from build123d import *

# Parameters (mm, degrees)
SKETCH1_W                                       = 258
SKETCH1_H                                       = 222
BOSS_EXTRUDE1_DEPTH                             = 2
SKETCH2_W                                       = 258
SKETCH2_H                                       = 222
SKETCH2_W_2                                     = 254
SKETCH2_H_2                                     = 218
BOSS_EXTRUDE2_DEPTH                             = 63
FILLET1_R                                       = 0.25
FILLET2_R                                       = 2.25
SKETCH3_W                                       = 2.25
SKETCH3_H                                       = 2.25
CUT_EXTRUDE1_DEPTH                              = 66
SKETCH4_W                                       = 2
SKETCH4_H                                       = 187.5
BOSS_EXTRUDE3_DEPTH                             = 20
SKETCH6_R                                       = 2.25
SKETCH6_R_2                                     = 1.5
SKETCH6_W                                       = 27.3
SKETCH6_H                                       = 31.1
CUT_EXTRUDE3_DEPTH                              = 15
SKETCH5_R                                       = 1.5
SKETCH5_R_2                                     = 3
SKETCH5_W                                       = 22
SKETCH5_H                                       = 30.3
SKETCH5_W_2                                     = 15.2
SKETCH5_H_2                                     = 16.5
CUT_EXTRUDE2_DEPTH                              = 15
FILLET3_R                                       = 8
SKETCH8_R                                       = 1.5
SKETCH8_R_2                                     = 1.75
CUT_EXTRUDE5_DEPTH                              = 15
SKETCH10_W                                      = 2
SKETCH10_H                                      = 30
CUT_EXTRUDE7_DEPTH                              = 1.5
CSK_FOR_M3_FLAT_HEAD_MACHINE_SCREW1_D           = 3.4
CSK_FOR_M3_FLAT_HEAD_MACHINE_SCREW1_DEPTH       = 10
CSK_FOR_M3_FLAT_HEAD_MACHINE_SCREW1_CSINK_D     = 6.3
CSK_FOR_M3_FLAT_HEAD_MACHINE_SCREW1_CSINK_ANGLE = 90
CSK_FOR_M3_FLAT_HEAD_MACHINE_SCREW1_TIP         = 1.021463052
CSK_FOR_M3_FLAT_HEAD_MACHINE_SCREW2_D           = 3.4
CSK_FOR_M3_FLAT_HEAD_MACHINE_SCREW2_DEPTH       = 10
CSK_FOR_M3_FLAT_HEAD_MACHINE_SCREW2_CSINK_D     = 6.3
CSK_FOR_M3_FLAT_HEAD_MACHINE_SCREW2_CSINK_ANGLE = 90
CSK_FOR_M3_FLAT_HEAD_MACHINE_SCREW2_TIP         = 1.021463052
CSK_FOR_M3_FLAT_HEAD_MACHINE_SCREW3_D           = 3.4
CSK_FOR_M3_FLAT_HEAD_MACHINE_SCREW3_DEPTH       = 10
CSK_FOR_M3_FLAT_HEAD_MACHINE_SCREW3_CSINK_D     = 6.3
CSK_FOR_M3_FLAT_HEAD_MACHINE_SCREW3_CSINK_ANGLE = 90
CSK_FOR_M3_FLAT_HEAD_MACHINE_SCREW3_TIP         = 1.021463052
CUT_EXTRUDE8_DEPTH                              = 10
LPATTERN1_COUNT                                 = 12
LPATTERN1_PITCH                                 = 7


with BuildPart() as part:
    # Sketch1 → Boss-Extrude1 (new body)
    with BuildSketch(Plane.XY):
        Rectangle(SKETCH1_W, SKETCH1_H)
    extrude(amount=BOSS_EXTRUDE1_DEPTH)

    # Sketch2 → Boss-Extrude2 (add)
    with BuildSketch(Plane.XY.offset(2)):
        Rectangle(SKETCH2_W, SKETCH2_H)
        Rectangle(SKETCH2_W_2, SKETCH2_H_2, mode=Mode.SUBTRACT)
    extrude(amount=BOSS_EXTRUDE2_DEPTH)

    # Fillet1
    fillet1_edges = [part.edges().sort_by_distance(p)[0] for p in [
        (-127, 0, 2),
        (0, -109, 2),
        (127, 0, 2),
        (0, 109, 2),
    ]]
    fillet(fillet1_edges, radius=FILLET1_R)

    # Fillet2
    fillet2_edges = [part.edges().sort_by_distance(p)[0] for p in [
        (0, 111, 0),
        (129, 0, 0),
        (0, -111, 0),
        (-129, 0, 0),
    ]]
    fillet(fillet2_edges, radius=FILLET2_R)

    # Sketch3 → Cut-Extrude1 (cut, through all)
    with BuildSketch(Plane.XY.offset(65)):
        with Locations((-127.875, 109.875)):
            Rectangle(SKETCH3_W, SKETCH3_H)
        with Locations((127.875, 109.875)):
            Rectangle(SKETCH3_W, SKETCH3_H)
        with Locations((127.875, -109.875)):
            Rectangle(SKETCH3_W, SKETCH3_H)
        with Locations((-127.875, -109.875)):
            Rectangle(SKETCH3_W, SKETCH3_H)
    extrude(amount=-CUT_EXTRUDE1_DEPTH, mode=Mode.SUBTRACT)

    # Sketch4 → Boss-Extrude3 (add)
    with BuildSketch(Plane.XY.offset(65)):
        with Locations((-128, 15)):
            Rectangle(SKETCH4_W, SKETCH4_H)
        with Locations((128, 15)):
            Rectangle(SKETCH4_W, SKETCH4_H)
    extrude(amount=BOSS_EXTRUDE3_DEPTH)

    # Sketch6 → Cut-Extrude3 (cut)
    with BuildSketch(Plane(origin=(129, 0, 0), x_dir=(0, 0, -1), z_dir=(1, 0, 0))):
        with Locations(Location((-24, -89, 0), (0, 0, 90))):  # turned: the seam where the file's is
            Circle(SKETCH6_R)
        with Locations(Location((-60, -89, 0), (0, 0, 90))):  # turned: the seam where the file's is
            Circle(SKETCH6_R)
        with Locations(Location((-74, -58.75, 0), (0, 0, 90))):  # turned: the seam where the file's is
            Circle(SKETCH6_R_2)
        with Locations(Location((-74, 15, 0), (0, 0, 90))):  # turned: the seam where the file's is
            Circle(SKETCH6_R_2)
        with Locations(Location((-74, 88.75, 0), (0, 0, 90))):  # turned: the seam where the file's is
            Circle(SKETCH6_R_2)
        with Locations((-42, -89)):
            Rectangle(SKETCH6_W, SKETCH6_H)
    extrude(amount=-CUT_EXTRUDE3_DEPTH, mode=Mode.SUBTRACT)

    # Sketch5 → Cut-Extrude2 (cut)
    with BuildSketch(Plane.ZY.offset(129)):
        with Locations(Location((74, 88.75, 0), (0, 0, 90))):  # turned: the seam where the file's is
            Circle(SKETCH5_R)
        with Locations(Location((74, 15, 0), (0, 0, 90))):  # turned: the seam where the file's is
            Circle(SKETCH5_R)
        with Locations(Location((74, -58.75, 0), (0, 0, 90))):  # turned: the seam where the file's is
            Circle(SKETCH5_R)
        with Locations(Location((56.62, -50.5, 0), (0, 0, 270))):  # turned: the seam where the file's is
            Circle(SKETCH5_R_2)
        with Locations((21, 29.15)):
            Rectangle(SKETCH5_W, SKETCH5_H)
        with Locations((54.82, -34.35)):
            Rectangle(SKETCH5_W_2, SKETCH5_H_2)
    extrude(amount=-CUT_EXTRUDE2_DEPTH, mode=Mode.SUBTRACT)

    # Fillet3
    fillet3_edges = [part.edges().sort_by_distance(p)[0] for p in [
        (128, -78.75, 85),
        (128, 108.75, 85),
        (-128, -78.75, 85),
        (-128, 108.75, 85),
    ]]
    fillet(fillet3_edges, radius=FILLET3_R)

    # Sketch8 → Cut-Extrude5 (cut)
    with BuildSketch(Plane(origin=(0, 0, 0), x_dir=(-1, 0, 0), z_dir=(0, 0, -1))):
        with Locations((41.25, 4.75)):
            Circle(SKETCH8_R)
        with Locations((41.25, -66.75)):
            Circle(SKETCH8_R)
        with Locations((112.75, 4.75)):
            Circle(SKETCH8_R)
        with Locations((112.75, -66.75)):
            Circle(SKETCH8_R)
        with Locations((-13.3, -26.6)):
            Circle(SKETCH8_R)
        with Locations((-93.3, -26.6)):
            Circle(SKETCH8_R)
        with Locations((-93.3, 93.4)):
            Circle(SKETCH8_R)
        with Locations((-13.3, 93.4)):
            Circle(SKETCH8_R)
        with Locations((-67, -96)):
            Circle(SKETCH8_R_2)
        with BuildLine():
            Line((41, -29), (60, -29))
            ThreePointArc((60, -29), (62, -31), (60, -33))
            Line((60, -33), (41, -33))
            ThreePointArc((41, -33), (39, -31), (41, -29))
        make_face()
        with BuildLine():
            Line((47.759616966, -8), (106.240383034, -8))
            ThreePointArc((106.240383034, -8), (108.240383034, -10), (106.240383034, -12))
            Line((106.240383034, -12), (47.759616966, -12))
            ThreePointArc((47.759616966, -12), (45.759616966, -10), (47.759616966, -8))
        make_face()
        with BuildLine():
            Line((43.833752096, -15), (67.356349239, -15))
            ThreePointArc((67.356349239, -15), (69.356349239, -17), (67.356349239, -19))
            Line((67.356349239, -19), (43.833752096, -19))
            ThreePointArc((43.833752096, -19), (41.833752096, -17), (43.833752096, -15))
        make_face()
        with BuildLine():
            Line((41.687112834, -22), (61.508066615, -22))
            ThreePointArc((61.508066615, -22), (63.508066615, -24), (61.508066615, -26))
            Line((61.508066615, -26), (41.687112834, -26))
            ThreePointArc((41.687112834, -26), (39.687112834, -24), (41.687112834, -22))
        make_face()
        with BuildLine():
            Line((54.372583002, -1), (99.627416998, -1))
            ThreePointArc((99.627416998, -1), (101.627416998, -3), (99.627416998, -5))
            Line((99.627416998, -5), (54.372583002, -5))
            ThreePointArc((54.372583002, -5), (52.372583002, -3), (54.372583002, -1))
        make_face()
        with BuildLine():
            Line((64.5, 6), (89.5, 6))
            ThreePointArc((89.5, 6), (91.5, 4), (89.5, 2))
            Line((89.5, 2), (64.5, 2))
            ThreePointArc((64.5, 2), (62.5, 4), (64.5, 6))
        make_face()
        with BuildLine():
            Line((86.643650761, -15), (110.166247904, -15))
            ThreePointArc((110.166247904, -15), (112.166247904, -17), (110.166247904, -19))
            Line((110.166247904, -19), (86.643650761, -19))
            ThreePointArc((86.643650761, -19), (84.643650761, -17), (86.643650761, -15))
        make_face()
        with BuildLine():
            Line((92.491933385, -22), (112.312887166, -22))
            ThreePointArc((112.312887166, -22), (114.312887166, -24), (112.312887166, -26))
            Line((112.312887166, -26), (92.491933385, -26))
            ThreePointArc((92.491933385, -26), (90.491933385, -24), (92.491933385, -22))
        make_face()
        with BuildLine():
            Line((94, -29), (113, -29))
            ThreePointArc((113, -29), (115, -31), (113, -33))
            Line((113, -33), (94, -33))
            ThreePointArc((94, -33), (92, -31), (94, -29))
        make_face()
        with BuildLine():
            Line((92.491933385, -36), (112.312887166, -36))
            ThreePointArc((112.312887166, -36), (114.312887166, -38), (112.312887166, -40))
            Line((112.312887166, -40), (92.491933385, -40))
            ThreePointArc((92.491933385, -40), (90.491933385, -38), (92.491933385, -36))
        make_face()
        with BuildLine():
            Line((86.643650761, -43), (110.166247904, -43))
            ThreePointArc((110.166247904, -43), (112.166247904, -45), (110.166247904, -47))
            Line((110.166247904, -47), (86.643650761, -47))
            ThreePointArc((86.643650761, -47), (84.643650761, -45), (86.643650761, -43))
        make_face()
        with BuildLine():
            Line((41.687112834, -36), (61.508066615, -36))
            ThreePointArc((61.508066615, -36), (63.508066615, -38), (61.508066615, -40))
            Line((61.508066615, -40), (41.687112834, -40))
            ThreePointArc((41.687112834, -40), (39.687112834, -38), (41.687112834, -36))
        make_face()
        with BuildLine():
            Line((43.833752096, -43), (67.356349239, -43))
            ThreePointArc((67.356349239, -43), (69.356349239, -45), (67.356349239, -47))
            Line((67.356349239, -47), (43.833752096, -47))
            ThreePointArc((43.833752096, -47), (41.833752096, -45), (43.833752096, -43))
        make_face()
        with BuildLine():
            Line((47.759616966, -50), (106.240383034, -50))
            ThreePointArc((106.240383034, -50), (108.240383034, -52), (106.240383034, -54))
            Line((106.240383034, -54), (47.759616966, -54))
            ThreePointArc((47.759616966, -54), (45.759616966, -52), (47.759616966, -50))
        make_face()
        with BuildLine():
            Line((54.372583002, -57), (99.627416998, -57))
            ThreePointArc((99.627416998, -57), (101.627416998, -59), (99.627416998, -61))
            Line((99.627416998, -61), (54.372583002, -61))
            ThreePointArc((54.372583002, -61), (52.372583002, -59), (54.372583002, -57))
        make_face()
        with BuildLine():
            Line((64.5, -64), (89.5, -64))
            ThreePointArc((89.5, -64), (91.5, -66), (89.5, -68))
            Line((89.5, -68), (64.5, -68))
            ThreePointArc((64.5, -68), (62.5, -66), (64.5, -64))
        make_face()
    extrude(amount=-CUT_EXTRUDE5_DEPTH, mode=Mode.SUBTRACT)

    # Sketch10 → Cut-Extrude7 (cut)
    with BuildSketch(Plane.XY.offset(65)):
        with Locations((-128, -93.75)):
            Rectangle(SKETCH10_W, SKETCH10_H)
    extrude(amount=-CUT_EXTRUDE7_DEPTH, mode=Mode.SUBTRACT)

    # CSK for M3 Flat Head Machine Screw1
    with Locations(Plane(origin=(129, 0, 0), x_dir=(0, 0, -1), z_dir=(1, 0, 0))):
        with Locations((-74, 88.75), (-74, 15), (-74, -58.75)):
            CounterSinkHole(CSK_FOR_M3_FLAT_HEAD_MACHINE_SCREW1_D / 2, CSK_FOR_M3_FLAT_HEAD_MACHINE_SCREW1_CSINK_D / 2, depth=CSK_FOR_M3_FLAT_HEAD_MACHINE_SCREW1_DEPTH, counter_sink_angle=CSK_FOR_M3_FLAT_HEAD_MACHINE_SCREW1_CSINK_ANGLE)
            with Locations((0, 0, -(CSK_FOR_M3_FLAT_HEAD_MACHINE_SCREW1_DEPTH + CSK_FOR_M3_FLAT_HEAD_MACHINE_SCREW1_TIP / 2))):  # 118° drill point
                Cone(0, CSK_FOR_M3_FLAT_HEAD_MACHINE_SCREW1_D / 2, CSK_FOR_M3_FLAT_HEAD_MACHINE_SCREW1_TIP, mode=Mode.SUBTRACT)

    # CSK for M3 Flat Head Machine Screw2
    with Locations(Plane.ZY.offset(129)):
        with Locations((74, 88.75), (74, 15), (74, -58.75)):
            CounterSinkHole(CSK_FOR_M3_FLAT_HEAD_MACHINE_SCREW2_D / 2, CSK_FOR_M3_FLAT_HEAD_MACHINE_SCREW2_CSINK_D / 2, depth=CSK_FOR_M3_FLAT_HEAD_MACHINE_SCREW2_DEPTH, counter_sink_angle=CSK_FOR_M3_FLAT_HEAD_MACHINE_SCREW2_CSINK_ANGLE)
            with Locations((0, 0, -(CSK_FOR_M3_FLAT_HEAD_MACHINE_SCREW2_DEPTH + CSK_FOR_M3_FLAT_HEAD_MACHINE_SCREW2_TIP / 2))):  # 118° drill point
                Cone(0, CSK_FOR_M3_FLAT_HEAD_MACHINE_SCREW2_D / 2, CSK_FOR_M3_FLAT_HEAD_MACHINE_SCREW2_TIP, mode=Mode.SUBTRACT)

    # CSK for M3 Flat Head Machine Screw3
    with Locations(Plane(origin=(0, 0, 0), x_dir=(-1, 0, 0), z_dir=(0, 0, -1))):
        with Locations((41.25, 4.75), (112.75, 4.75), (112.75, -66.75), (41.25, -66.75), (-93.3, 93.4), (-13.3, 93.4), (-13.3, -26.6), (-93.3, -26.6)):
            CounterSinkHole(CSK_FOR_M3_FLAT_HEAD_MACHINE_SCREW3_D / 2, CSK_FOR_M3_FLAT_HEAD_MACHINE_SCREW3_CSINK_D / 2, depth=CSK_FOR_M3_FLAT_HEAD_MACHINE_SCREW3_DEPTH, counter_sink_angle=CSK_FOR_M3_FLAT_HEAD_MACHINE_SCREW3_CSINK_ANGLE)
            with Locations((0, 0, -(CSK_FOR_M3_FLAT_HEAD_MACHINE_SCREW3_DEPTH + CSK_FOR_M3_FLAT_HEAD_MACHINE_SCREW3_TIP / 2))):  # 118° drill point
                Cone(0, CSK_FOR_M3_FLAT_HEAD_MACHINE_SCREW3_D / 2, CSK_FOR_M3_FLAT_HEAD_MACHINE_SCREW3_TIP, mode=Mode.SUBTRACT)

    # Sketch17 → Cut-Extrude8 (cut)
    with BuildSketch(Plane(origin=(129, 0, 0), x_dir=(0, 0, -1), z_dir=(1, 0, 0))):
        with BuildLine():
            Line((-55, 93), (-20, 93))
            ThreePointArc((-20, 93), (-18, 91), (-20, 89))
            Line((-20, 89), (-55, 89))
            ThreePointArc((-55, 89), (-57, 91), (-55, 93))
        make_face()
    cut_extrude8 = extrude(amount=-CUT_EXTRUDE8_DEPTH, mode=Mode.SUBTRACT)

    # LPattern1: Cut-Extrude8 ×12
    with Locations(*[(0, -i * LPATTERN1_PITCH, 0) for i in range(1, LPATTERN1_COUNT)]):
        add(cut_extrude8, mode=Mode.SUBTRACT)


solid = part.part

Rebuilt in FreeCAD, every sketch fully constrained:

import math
import FreeCAD as App
import Part
import Sketcher


def edges_at(feature, points):
    """Names of the edges that pass closest to the given points."""
    edges = feature.Shape.Edges
    near = lambda p: min(range(len(edges)), key=lambda i: edges[i].distToShape(Part.Vertex(*p))[0])
    return sorted({f"Edge{near(p) + 1}" for p in points})

doc = App.newDocument("Part")
body = doc.addObject("PartDesign::Body", "Body")

# Sketch on XY plane
sketch1 = body.newObject("Sketcher::SketchObject", "Sketch")
sketch1.AttachmentSupport = (doc.getObject("XY_Plane"), [""])
sketch1.MapMode = "FlatFace"
sketch1.addGeometry([
    Part.LineSegment(App.Vector(-129, 111, 0), App.Vector(-129, -111, 0)),
    Part.LineSegment(App.Vector(-129, -111, 0), App.Vector(129, -111, 0)),
    Part.LineSegment(App.Vector(129, -111, 0), App.Vector(129, 111, 0)),
    Part.LineSegment(App.Vector(129, 111, 0), App.Vector(-129, 111, 0)),
], False)
sketch1.addConstraint([
    Sketcher.Constraint("Coincident", 0, 2, 1, 1),
    Sketcher.Constraint("Coincident", 1, 2, 2, 1),
    Sketcher.Constraint("Coincident", 2, 2, 3, 1),
    Sketcher.Constraint("Coincident", 3, 2, 0, 1),
    Sketcher.Constraint("Vertical", 0),
    Sketcher.Constraint("Horizontal", 1),
    Sketcher.Constraint("Vertical", 2),
    Sketcher.Constraint("Horizontal", 3),
    Sketcher.Constraint("Symmetric", 0, 2, 2, 2, -1, 1),
    Sketcher.Constraint("DistanceX", 1, 1, 1, 2, 258.0),
    Sketcher.Constraint("DistanceY", 0, 2, 0, 1, 222.0),
])
pad1 = body.newObject("PartDesign::Pad", "Pad")
pad1.Profile = sketch1
pad1.Length = 2

# Sketch on XY plane
sketch2 = body.newObject("Sketcher::SketchObject", "Sketch001")
sketch2.AttachmentSupport = (doc.getObject("XY_Plane"), [""])
sketch2.MapMode = "FlatFace"
sketch2.AttachmentOffset = App.Placement(App.Vector(0, 0, 2), App.Rotation())
sketch2.addGeometry([
    Part.LineSegment(App.Vector(-129, 111, 0), App.Vector(-129, -111, 0)),  # 0
    Part.LineSegment(App.Vector(-129, -111, 0), App.Vector(129, -111, 0)),  # 1
    Part.LineSegment(App.Vector(129, -111, 0), App.Vector(129, 111, 0)),  # 2
    Part.LineSegment(App.Vector(129, 111, 0), App.Vector(-129, 111, 0)),  # 3
    Part.LineSegment(App.Vector(127, -109, 0), App.Vector(-127, -109, 0)),  # 4
    Part.LineSegment(App.Vector(-127, -109, 0), App.Vector(-127, 109, 0)),  # 5
    Part.LineSegment(App.Vector(-127, 109, 0), App.Vector(127, 109, 0)),  # 6
    Part.LineSegment(App.Vector(127, 109, 0), App.Vector(127, -109, 0)),  # 7
], False)
sketch2.addConstraint([
    Sketcher.Constraint("Coincident", 0, 2, 1, 1),
    Sketcher.Constraint("Coincident", 1, 2, 2, 1),
    Sketcher.Constraint("Coincident", 2, 2, 3, 1),
    Sketcher.Constraint("Coincident", 3, 2, 0, 1),
    Sketcher.Constraint("Coincident", 4, 2, 5, 1),
    Sketcher.Constraint("Coincident", 5, 2, 6, 1),
    Sketcher.Constraint("Coincident", 6, 2, 7, 1),
    Sketcher.Constraint("Coincident", 7, 2, 4, 1),
    Sketcher.Constraint("Vertical", 0),
    Sketcher.Constraint("Horizontal", 1),
    Sketcher.Constraint("Vertical", 2),
    Sketcher.Constraint("Horizontal", 3),
    Sketcher.Constraint("Horizontal", 4),
    Sketcher.Constraint("Vertical", 5),
    Sketcher.Constraint("Horizontal", 6),
    Sketcher.Constraint("Vertical", 7),
    Sketcher.Constraint("Symmetric", 0, 2, 2, 2, -1, 1),
    Sketcher.Constraint("Symmetric", 4, 2, 6, 2, -1, 1),
    Sketcher.Constraint("DistanceX", 1, 1, 1, 2, 258.0),
    Sketcher.Constraint("DistanceX", 4, 2, 4, 1, 254.0),
    Sketcher.Constraint("DistanceY", 0, 2, 0, 1, 222.0),
    Sketcher.Constraint("DistanceY", 5, 1, 5, 2, 218.0),
])
pad2 = body.newObject("PartDesign::Pad", "Pad001")
pad2.Profile = sketch2
pad2.Length = 63
doc.recompute()

fillet = body.newObject("PartDesign::Fillet", "Fillet")
fillet.Base = (pad2, edges_at(pad2, [
    (-127, 0, 2),
    (0, -109, 2),
    (127, 0, 2),
    (0, 109, 2),
]))
fillet.Radius = 0.25
doc.recompute()

fillet2 = body.newObject("PartDesign::Fillet", "Fillet001")
fillet2.Base = (fillet, edges_at(fillet, [
    (0, 111, 0),
    (129, 0, 0),
    (0, -111, 0),
    (-129, 0, 0),
]))
fillet2.Radius = 2.25

# Sketch on XY plane
sketch3 = body.newObject("Sketcher::SketchObject", "Sketch002")
sketch3.AttachmentSupport = (doc.getObject("XY_Plane"), [""])
sketch3.MapMode = "FlatFace"
sketch3.AttachmentOffset = App.Placement(App.Vector(0, 0, 65), App.Rotation())
sketch3.addGeometry([
    Part.LineSegment(App.Vector(-129, 111, 0), App.Vector(-129, 108.75, 0)),  # 0
    Part.LineSegment(App.Vector(-129, 108.75, 0), App.Vector(-126.75, 108.75, 0)),  # 1
    Part.LineSegment(App.Vector(-126.75, 108.75, 0), App.Vector(-126.75, 111, 0)),  # 2
    Part.LineSegment(App.Vector(-126.75, 111, 0), App.Vector(-129, 111, 0)),  # 3
    Part.LineSegment(App.Vector(126.75, 111, 0), App.Vector(126.75, 108.75, 0)),  # 4
    Part.LineSegment(App.Vector(126.75, 108.75, 0), App.Vector(129, 108.75, 0)),  # 5
    Part.LineSegment(App.Vector(129, 108.75, 0), App.Vector(129, 111, 0)),  # 6
    Part.LineSegment(App.Vector(129, 111, 0), App.Vector(126.75, 111, 0)),  # 7
    Part.LineSegment(App.Vector(126.75, -108.75, 0), App.Vector(126.75, -111, 0)),  # 8
    Part.LineSegment(App.Vector(126.75, -111, 0), App.Vector(129, -111, 0)),  # 9
    Part.LineSegment(App.Vector(129, -111, 0), App.Vector(129, -108.75, 0)),  # 10
    Part.LineSegment(App.Vector(129, -108.75, 0), App.Vector(126.75, -108.75, 0)),  # 11
    Part.LineSegment(App.Vector(-129, -108.75, 0), App.Vector(-129, -111, 0)),  # 12
    Part.LineSegment(App.Vector(-129, -111, 0), App.Vector(-126.75, -111, 0)),  # 13
    Part.LineSegment(App.Vector(-126.75, -111, 0), App.Vector(-126.75, -108.75, 0)),  # 14
    Part.LineSegment(App.Vector(-126.75, -108.75, 0), App.Vector(-129, -108.75, 0)),  # 15
], False)
sketch3.addConstraint([
    Sketcher.Constraint("Coincident", 0, 2, 1, 1),
    Sketcher.Constraint("Coincident", 1, 2, 2, 1),
    Sketcher.Constraint("Coincident", 2, 2, 3, 1),
    Sketcher.Constraint("Coincident", 3, 2, 0, 1),
    Sketcher.Constraint("Coincident", 4, 2, 5, 1),
    Sketcher.Constraint("Coincident", 5, 2, 6, 1),
    Sketcher.Constraint("Coincident", 6, 2, 7, 1),
    Sketcher.Constraint("Coincident", 7, 2, 4, 1),
    Sketcher.Constraint("Coincident", 8, 2, 9, 1),
    Sketcher.Constraint("Coincident", 9, 2, 10, 1),
    Sketcher.Constraint("Coincident", 10, 2, 11, 1),
    Sketcher.Constraint("Coincident", 11, 2, 8, 1),
    Sketcher.Constraint("Coincident", 12, 2, 13, 1),
    Sketcher.Constraint("Coincident", 13, 2, 14, 1),
    Sketcher.Constraint("Coincident", 14, 2, 15, 1),
    Sketcher.Constraint("Coincident", 15, 2, 12, 1),
    Sketcher.Constraint("Vertical", 0),
    Sketcher.Constraint("Horizontal", 1),
    Sketcher.Constraint("Vertical", 2),
    Sketcher.Constraint("Horizontal", 3),
    Sketcher.Constraint("Vertical", 4),
    Sketcher.Constraint("Horizontal", 5),
    Sketcher.Constraint("Vertical", 6),
    Sketcher.Constraint("Horizontal", 7),
    Sketcher.Constraint("Vertical", 8),
    Sketcher.Constraint("Horizontal", 9),
    Sketcher.Constraint("Vertical", 10),
    Sketcher.Constraint("Horizontal", 11),
    Sketcher.Constraint("Vertical", 12),
    Sketcher.Constraint("Horizontal", 13),
    Sketcher.Constraint("Vertical", 14),
    Sketcher.Constraint("Horizontal", 15),
    Sketcher.Constraint("Symmetric", 2, 2, 8, 2, -1, 1),
    Sketcher.Constraint("Symmetric", 0, 2, 10, 2, -1, 1),
    Sketcher.Constraint("Symmetric", 6, 2, 12, 2, -1, 1),
    Sketcher.Constraint("Symmetric", 4, 2, 14, 2, -1, 1),
    Sketcher.Constraint("Symmetric", 1, 2, 4, 2, -2),
    Sketcher.Constraint("Symmetric", 3, 2, 6, 2, -2),
    Sketcher.Constraint("Equal", 15, 0),
    Sketcher.Constraint("DistanceX", 0, 2, -1, 1, 129.0),
    Sketcher.Constraint("DistanceY", -1, 1, 2, 2, 111.0),
    Sketcher.Constraint("DistanceX", 1, 1, 1, 2, 2.25),
])
pocket1 = body.newObject("PartDesign::Pocket", "Pocket")
pocket1.Profile = sketch3
pocket1.Type = "ThroughAll"

# Sketch on XY plane
sketch4 = body.newObject("Sketcher::SketchObject", "Sketch003")
sketch4.AttachmentSupport = (doc.getObject("XY_Plane"), [""])
sketch4.MapMode = "FlatFace"
sketch4.AttachmentOffset = App.Placement(App.Vector(0, 0, 65), App.Rotation())
sketch4.addGeometry([
    Part.LineSegment(App.Vector(-129, 108.75, 0), App.Vector(-129, -78.75, 0)),  # 0
    Part.LineSegment(App.Vector(-129, -78.75, 0), App.Vector(-127, -78.75, 0)),  # 1
    Part.LineSegment(App.Vector(-127, -78.75, 0), App.Vector(-127, 108.75, 0)),  # 2
    Part.LineSegment(App.Vector(-127, 108.75, 0), App.Vector(-129, 108.75, 0)),  # 3
    Part.LineSegment(App.Vector(127, 108.75, 0), App.Vector(127, -78.75, 0)),  # 4
    Part.LineSegment(App.Vector(127, -78.75, 0), App.Vector(129, -78.75, 0)),  # 5
    Part.LineSegment(App.Vector(129, -78.75, 0), App.Vector(129, 108.75, 0)),  # 6
    Part.LineSegment(App.Vector(129, 108.75, 0), App.Vector(127, 108.75, 0)),  # 7
], False)
sketch4.addConstraint([
    Sketcher.Constraint("Coincident", 0, 2, 1, 1),
    Sketcher.Constraint("Coincident", 1, 2, 2, 1),
    Sketcher.Constraint("Coincident", 2, 2, 3, 1),
    Sketcher.Constraint("Coincident", 3, 2, 0, 1),
    Sketcher.Constraint("Coincident", 4, 2, 5, 1),
    Sketcher.Constraint("Coincident", 5, 2, 6, 1),
    Sketcher.Constraint("Coincident", 6, 2, 7, 1),
    Sketcher.Constraint("Coincident", 7, 2, 4, 1),
    Sketcher.Constraint("Vertical", 0),
    Sketcher.Constraint("Horizontal", 1),
    Sketcher.Constraint("Vertical", 2),
    Sketcher.Constraint("Horizontal", 3),
    Sketcher.Constraint("Vertical", 4),
    Sketcher.Constraint("Horizontal", 5),
    Sketcher.Constraint("Vertical", 6),
    Sketcher.Constraint("Horizontal", 7),
    Sketcher.Constraint("Symmetric", 1, 2, 4, 2, -2),
    Sketcher.Constraint("Symmetric", 3, 2, 6, 2, -2),
    Sketcher.Constraint("DistanceX", 1, 1, 1, 2, 2.0),
    Sketcher.Constraint("DistanceY", 0, 2, 0, 1, 187.5),
    Sketcher.Constraint("DistanceX", 0, 2, -1, 1, 129.0),
    Sketcher.Constraint("DistanceY", 0, 2, -1, 1, 78.75),
])
pad3 = body.newObject("PartDesign::Pad", "Pad002")
pad3.Profile = sketch4
pad3.Length = 20

# Sketch on YZ plane
sketch5 = body.newObject("Sketcher::SketchObject", "Sketch004")
sketch5.AttachmentSupport = (doc.getObject("YZ_Plane"), [""])
sketch5.MapMode = "FlatFace"
sketch5.AttachmentOffset = App.Placement(App.Vector(0, 0, 129), App.Rotation())
sketch5.addGeometry([
    Part.Circle(App.Vector(-89, 24, 0), App.Vector(0, 0, 1), 2.25),  # 0
    Part.Circle(App.Vector(-89, 60, 0), App.Vector(0, 0, 1), 2.25),  # 1
    Part.Circle(App.Vector(-58.75, 74, 0), App.Vector(0, 0, 1), 1.5),  # 2
    Part.Circle(App.Vector(15, 74, 0), App.Vector(0, 0, 1), 1.5),  # 3
    Part.Circle(App.Vector(88.75, 74, 0), App.Vector(0, 0, 1), 1.5),  # 4
    Part.LineSegment(App.Vector(-73.45, 55.65, 0), App.Vector(-104.55, 55.65, 0)),  # 5
    Part.LineSegment(App.Vector(-104.55, 55.65, 0), App.Vector(-104.55, 28.35, 0)),  # 6
    Part.LineSegment(App.Vector(-104.55, 28.35, 0), App.Vector(-73.45, 28.35, 0)),  # 7
    Part.LineSegment(App.Vector(-73.45, 28.35, 0), App.Vector(-73.45, 55.65, 0)),  # 8
], False)
sketch5.addConstraint([
    Sketcher.Constraint("Coincident", 5, 2, 6, 1),
    Sketcher.Constraint("Coincident", 6, 2, 7, 1),
    Sketcher.Constraint("Coincident", 7, 2, 8, 1),
    Sketcher.Constraint("Coincident", 8, 2, 5, 1),
    Sketcher.Constraint("Horizontal", 5),
    Sketcher.Constraint("Vertical", 6),
    Sketcher.Constraint("Horizontal", 7),
    Sketcher.Constraint("Vertical", 8),
    Sketcher.Constraint("Equal", 0, 1),
    Sketcher.Constraint("Equal", 2, 3),
    Sketcher.Constraint("Equal", 3, 4),
    Sketcher.Constraint("Horizontal", 2, 3, 3, 3),
    Sketcher.Constraint("Horizontal", 3, 3, 4, 3),
    Sketcher.Constraint("Vertical", 0, 3, 1, 3),
    Sketcher.Constraint("Diameter", 2, 3.0),
    Sketcher.Constraint("Diameter", 0, 4.5),
    Sketcher.Constraint("DistanceX", 5, 2, 5, 1, 31.1),
    Sketcher.Constraint("DistanceY", 6, 2, 6, 1, 27.3),
    Sketcher.Constraint("DistanceX", 0, 3, -1, 1, 89.0),
    Sketcher.Constraint("DistanceY", -1, 1, 0, 3, 24.0),
    Sketcher.Constraint("DistanceY", -1, 1, 1, 3, 60.0),
    Sketcher.Constraint("DistanceY", -1, 1, 2, 3, 74.0),
    Sketcher.Constraint("DistanceX", -1, 1, 3, 3, 15.0),
    Sketcher.Constraint("DistanceX", 2, 3, 4, 3, 147.5),
    Sketcher.Constraint("DistanceX", 5, 2, 2, 3, 45.8),
    Sketcher.Constraint("DistanceX", 2, 3, -1, 1, 58.75),
    Sketcher.Constraint("DistanceY", -1, 1, 5, 2, 55.65),
])
pocket2 = body.newObject("PartDesign::Pocket", "Pocket001")
pocket2.Profile = sketch5
pocket2.Length = 15

# Sketch on YZ plane
sketch6 = body.newObject("Sketcher::SketchObject", "Sketch005")
sketch6.AttachmentSupport = (doc.getObject("YZ_Plane"), [""])
sketch6.MapMode = "FlatFace"
sketch6.AttachmentOffset = App.Placement(App.Vector(0, 0, -129), App.Rotation())
sketch6.addGeometry([
    Part.Circle(App.Vector(88.75, 74, 0), App.Vector(0, 0, 1), 1.5),  # 0
    Part.Circle(App.Vector(15, 74, 0), App.Vector(0, 0, 1), 1.5),  # 1
    Part.Circle(App.Vector(-58.75, 74, 0), App.Vector(0, 0, 1), 1.5),  # 2
    Part.Circle(App.Vector(-50.5, 56.62, 0), App.Vector(0, 0, 1), 3),  # 3
    Part.LineSegment(App.Vector(44.3, 10, 0), App.Vector(14, 10, 0)),  # 4
    Part.LineSegment(App.Vector(14, 10, 0), App.Vector(14, 32, 0)),  # 5
    Part.LineSegment(App.Vector(14, 32, 0), App.Vector(44.3, 32, 0)),  # 6
    Part.LineSegment(App.Vector(44.3, 32, 0), App.Vector(44.3, 10, 0)),  # 7
    Part.LineSegment(App.Vector(-26.1, 47.22, 0), App.Vector(-42.6, 47.22, 0)),  # 8
    Part.LineSegment(App.Vector(-42.6, 47.22, 0), App.Vector(-42.6, 62.42, 0)),  # 9
    Part.LineSegment(App.Vector(-42.6, 62.42, 0), App.Vector(-26.1, 62.42, 0)),  # 10
    Part.LineSegment(App.Vector(-26.1, 62.42, 0), App.Vector(-26.1, 47.22, 0)),  # 11
], False)
sketch6.addConstraint([
    Sketcher.Constraint("Coincident", 4, 2, 5, 1),
    Sketcher.Constraint("Coincident", 5, 2, 6, 1),
    Sketcher.Constraint("Coincident", 6, 2, 7, 1),
    Sketcher.Constraint("Coincident", 7, 2, 4, 1),
    Sketcher.Constraint("Coincident", 8, 2, 9, 1),
    Sketcher.Constraint("Coincident", 9, 2, 10, 1),
    Sketcher.Constraint("Coincident", 10, 2, 11, 1),
    Sketcher.Constraint("Coincident", 11, 2, 8, 1),
    Sketcher.Constraint("Horizontal", 4),
    Sketcher.Constraint("Vertical", 5),
    Sketcher.Constraint("Horizontal", 6),
    Sketcher.Constraint("Vertical", 7),
    Sketcher.Constraint("Horizontal", 8),
    Sketcher.Constraint("Vertical", 9),
    Sketcher.Constraint("Horizontal", 10),
    Sketcher.Constraint("Vertical", 11),
    Sketcher.Constraint("Equal", 0, 1),
    Sketcher.Constraint("Equal", 1, 2),
    Sketcher.Constraint("Horizontal", 0, 3, 1, 3),
    Sketcher.Constraint("Horizontal", 1, 3, 2, 3),
    Sketcher.Constraint("Diameter", 0, 3.0),
    Sketcher.Constraint("Diameter", 3, 6.0),
    Sketcher.Constraint("DistanceY", 5, 1, 5, 2, 22.0),
    Sketcher.Constraint("DistanceX", 4, 2, 4, 1, 30.3),
    Sketcher.Constraint("DistanceX", 8, 2, 8, 1, 16.5),
    Sketcher.Constraint("DistanceY", 9, 1, 9, 2, 15.2),
    Sketcher.Constraint("DistanceY", -1, 1, 0, 3, 74.0),
    Sketcher.Constraint("DistanceX", -1, 1, 1, 3, 15.0),
    Sketcher.Constraint("DistanceX", -1, 1, 4, 2, 14.0),
    Sketcher.Constraint("DistanceY", -1, 1, 4, 2, 10.0),
    Sketcher.Constraint("DistanceX", 3, 3, -1, 1, 50.5),
    Sketcher.Constraint("DistanceX", 8, 2, -1, 1, 42.6),
    Sketcher.Constraint("DistanceX", 2, 3, 0, 3, 147.5),
    Sketcher.Constraint("DistanceY", 8, 2, 3, 3, 9.4),
    Sketcher.Constraint("DistanceX", -1, 1, 0, 3, 88.75),
    Sketcher.Constraint("DistanceY", -1, 1, 3, 3, 56.62),
])
pocket3 = body.newObject("PartDesign::Pocket", "Pocket002")
pocket3.Profile = sketch6
pocket3.Length = 15
pocket3.Reversed = True
doc.recompute()

fillet3 = body.newObject("PartDesign::Fillet", "Fillet002")
fillet3.Base = (pocket3, edges_at(pocket3, [
    (128, -78.75, 85),
    (128, 108.75, 85),
    (-128, -78.75, 85),
    (-128, 108.75, 85),
]))
fillet3.Radius = 8

# Sketch on XY plane
sketch7 = body.newObject("Sketcher::SketchObject", "Sketch006")
sketch7.AttachmentSupport = (doc.getObject("XY_Plane"), [""])
sketch7.MapMode = "FlatFace"
sketch7.addGeometry([
    Part.Circle(App.Vector(-41.25, 4.75, 0), App.Vector(0, 0, 1), 1.5),  # 0
    Part.Circle(App.Vector(-41.25, -66.75, 0), App.Vector(0, 0, 1), 1.5),  # 1
    Part.Circle(App.Vector(-112.75, 4.75, 0), App.Vector(0, 0, 1), 1.5),  # 2
    Part.Circle(App.Vector(-112.75, -66.75, 0), App.Vector(0, 0, 1), 1.5),  # 3
    Part.Circle(App.Vector(13.3, -26.6, 0), App.Vector(0, 0, 1), 1.5),  # 4
    Part.Circle(App.Vector(93.3, -26.6, 0), App.Vector(0, 0, 1), 1.5),  # 5
    Part.Circle(App.Vector(93.3, 93.4, 0), App.Vector(0, 0, 1), 1.5),  # 6
    Part.Circle(App.Vector(13.3, 93.4, 0), App.Vector(0, 0, 1), 1.5),  # 7
    Part.Circle(App.Vector(67, -96, 0), App.Vector(0, 0, 1), 1.75),  # 8
    Part.LineSegment(App.Vector(-60, -29, 0), App.Vector(-41, -29, 0)),  # 9
    Part.ArcOfCircle(Part.Circle(App.Vector(-41, -31, 0), App.Vector(0, 0, 1), 2), math.radians(-90), math.radians(90)),  # 10
    Part.LineSegment(App.Vector(-41, -33, 0), App.Vector(-60, -33, 0)),  # 11
    Part.ArcOfCircle(Part.Circle(App.Vector(-60, -31, 0), App.Vector(0, 0, 1), 2), math.radians(90), math.radians(270)),  # 12
    Part.LineSegment(App.Vector(-106.240383, -8, 0), App.Vector(-47.759617, -8, 0)),  # 13
    Part.ArcOfCircle(Part.Circle(App.Vector(-47.759617, -10, 0), App.Vector(0, 0, 1), 2), math.radians(-90), math.radians(90)),  # 14
    Part.LineSegment(App.Vector(-47.759617, -12, 0), App.Vector(-106.240383, -12, 0)),  # 15
    Part.ArcOfCircle(Part.Circle(App.Vector(-106.240383, -10, 0), App.Vector(0, 0, 1), 2), math.radians(90), math.radians(270)),  # 16
    Part.LineSegment(App.Vector(-67.356349, -15, 0), App.Vector(-43.833752, -15, 0)),  # 17
    Part.ArcOfCircle(Part.Circle(App.Vector(-43.833752, -17, 0), App.Vector(0, 0, 1), 2), math.radians(-90), math.radians(90)),  # 18
    Part.LineSegment(App.Vector(-43.833752, -19, 0), App.Vector(-67.356349, -19, 0)),  # 19
    Part.ArcOfCircle(Part.Circle(App.Vector(-67.356349, -17, 0), App.Vector(0, 0, 1), 2), math.radians(90), math.radians(270)),  # 20
    Part.LineSegment(App.Vector(-61.508067, -22, 0), App.Vector(-41.687113, -22, 0)),  # 21
    Part.ArcOfCircle(Part.Circle(App.Vector(-41.687113, -24, 0), App.Vector(0, 0, 1), 2), math.radians(-90), math.radians(90)),  # 22
    Part.LineSegment(App.Vector(-41.687113, -26, 0), App.Vector(-61.508067, -26, 0)),  # 23
    Part.ArcOfCircle(Part.Circle(App.Vector(-61.508067, -24, 0), App.Vector(0, 0, 1), 2), math.radians(90), math.radians(270)),  # 24
    Part.LineSegment(App.Vector(-99.627417, -1, 0), App.Vector(-54.372583, -1, 0)),  # 25
    Part.ArcOfCircle(Part.Circle(App.Vector(-54.372583, -3, 0), App.Vector(0, 0, 1), 2), math.radians(-90), math.radians(90)),  # 26
    Part.LineSegment(App.Vector(-54.372583, -5, 0), App.Vector(-99.627417, -5, 0)),  # 27
    Part.ArcOfCircle(Part.Circle(App.Vector(-99.627417, -3, 0), App.Vector(0, 0, 1), 2), math.radians(90), math.radians(270)),  # 28
    Part.LineSegment(App.Vector(-89.5, 6, 0), App.Vector(-64.5, 6, 0)),  # 29
    Part.ArcOfCircle(Part.Circle(App.Vector(-64.5, 4, 0), App.Vector(0, 0, 1), 2), math.radians(-90), math.radians(90)),  # 30
    Part.LineSegment(App.Vector(-64.5, 2, 0), App.Vector(-89.5, 2, 0)),  # 31
    Part.ArcOfCircle(Part.Circle(App.Vector(-89.5, 4, 0), App.Vector(0, 0, 1), 2), math.radians(90), math.radians(270)),  # 32
    Part.LineSegment(App.Vector(-110.166248, -15, 0), App.Vector(-86.643651, -15, 0)),  # 33
    Part.ArcOfCircle(Part.Circle(App.Vector(-86.643651, -17, 0), App.Vector(0, 0, 1), 2), math.radians(-90), math.radians(90)),  # 34
    Part.LineSegment(App.Vector(-86.643651, -19, 0), App.Vector(-110.166248, -19, 0)),  # 35
    Part.ArcOfCircle(Part.Circle(App.Vector(-110.166248, -17, 0), App.Vector(0, 0, 1), 2), math.radians(90), math.radians(270)),  # 36
    Part.LineSegment(App.Vector(-112.312887, -22, 0), App.Vector(-92.491933, -22, 0)),  # 37
    Part.ArcOfCircle(Part.Circle(App.Vector(-92.491933, -24, 0), App.Vector(0, 0, 1), 2), math.radians(-90), math.radians(90)),  # 38
    Part.LineSegment(App.Vector(-92.491933, -26, 0), App.Vector(-112.312887, -26, 0)),  # 39
    Part.ArcOfCircle(Part.Circle(App.Vector(-112.312887, -24, 0), App.Vector(0, 0, 1), 2), math.radians(90), math.radians(270)),  # 40
    Part.LineSegment(App.Vector(-113, -29, 0), App.Vector(-94, -29, 0)),  # 41
    Part.ArcOfCircle(Part.Circle(App.Vector(-94, -31, 0), App.Vector(0, 0, 1), 2), math.radians(-90), math.radians(90)),  # 42
    Part.LineSegment(App.Vector(-94, -33, 0), App.Vector(-113, -33, 0)),  # 43
    Part.ArcOfCircle(Part.Circle(App.Vector(-113, -31, 0), App.Vector(0, 0, 1), 2), math.radians(90), math.radians(270)),  # 44
    Part.LineSegment(App.Vector(-112.312887, -36, 0), App.Vector(-92.491933, -36, 0)),  # 45
    Part.ArcOfCircle(Part.Circle(App.Vector(-92.491933, -38, 0), App.Vector(0, 0, 1), 2), math.radians(-90), math.radians(90)),  # 46
    Part.LineSegment(App.Vector(-92.491933, -40, 0), App.Vector(-112.312887, -40, 0)),  # 47
    Part.ArcOfCircle(Part.Circle(App.Vector(-112.312887, -38, 0), App.Vector(0, 0, 1), 2), math.radians(90), math.radians(270)),  # 48
    Part.LineSegment(App.Vector(-110.166248, -43, 0), App.Vector(-86.643651, -43, 0)),  # 49
    Part.ArcOfCircle(Part.Circle(App.Vector(-86.643651, -45, 0), App.Vector(0, 0, 1), 2), math.radians(-90), math.radians(90)),  # 50
    Part.LineSegment(App.Vector(-86.643651, -47, 0), App.Vector(-110.166248, -47, 0)),  # 51
    Part.ArcOfCircle(Part.Circle(App.Vector(-110.166248, -45, 0), App.Vector(0, 0, 1), 2), math.radians(90), math.radians(270)),  # 52
    Part.LineSegment(App.Vector(-61.508067, -36, 0), App.Vector(-41.687113, -36, 0)),  # 53
    Part.ArcOfCircle(Part.Circle(App.Vector(-41.687113, -38, 0), App.Vector(0, 0, 1), 2), math.radians(-90), math.radians(90)),  # 54
    Part.LineSegment(App.Vector(-41.687113, -40, 0), App.Vector(-61.508067, -40, 0)),  # 55
    Part.ArcOfCircle(Part.Circle(App.Vector(-61.508067, -38, 0), App.Vector(0, 0, 1), 2), math.radians(90), math.radians(270)),  # 56
    Part.LineSegment(App.Vector(-67.356349, -43, 0), App.Vector(-43.833752, -43, 0)),  # 57
    Part.ArcOfCircle(Part.Circle(App.Vector(-43.833752, -45, 0), App.Vector(0, 0, 1), 2), math.radians(-90), math.radians(90)),  # 58
    Part.LineSegment(App.Vector(-43.833752, -47, 0), App.Vector(-67.356349, -47, 0)),  # 59
    Part.ArcOfCircle(Part.Circle(App.Vector(-67.356349, -45, 0), App.Vector(0, 0, 1), 2), math.radians(90), math.radians(270)),  # 60
    Part.LineSegment(App.Vector(-106.240383, -50, 0), App.Vector(-47.759617, -50, 0)),  # 61
    Part.ArcOfCircle(Part.Circle(App.Vector(-47.759617, -52, 0), App.Vector(0, 0, 1), 2), math.radians(-90), math.radians(90)),  # 62
    Part.LineSegment(App.Vector(-47.759617, -54, 0), App.Vector(-106.240383, -54, 0)),  # 63
    Part.ArcOfCircle(Part.Circle(App.Vector(-106.240383, -52, 0), App.Vector(0, 0, 1), 2), math.radians(90), math.radians(270)),  # 64
    Part.LineSegment(App.Vector(-99.627417, -57, 0), App.Vector(-54.372583, -57, 0)),  # 65
    Part.ArcOfCircle(Part.Circle(App.Vector(-54.372583, -59, 0), App.Vector(0, 0, 1), 2), math.radians(-90), math.radians(90)),  # 66
    Part.LineSegment(App.Vector(-54.372583, -61, 0), App.Vector(-99.627417, -61, 0)),  # 67
    Part.ArcOfCircle(Part.Circle(App.Vector(-99.627417, -59, 0), App.Vector(0, 0, 1), 2), math.radians(90), math.radians(270)),  # 68
    Part.LineSegment(App.Vector(-89.5, -64, 0), App.Vector(-64.5, -64, 0)),  # 69
    Part.ArcOfCircle(Part.Circle(App.Vector(-64.5, -66, 0), App.Vector(0, 0, 1), 2), math.radians(-90), math.radians(90)),  # 70
    Part.LineSegment(App.Vector(-64.5, -68, 0), App.Vector(-89.5, -68, 0)),  # 71
    Part.ArcOfCircle(Part.Circle(App.Vector(-89.5, -66, 0), App.Vector(0, 0, 1), 2), math.radians(90), math.radians(270)),  # 72
], False)
sketch7.addConstraint([
    Sketcher.Constraint("Tangent", 9, 2, 10, 2),
    Sketcher.Constraint("Tangent", 10, 1, 11, 1),
    Sketcher.Constraint("Tangent", 11, 2, 12, 2),
    Sketcher.Constraint("Tangent", 12, 1, 9, 1),
    Sketcher.Constraint("Tangent", 13, 2, 14, 2),
    Sketcher.Constraint("Tangent", 14, 1, 15, 1),
    Sketcher.Constraint("Tangent", 15, 2, 16, 2),
    Sketcher.Constraint("Tangent", 16, 1, 13, 1),
    Sketcher.Constraint("Tangent", 17, 2, 18, 2),
    Sketcher.Constraint("Tangent", 18, 1, 19, 1),
    Sketcher.Constraint("Tangent", 19, 2, 20, 2),
    Sketcher.Constraint("Tangent", 20, 1, 17, 1),
    Sketcher.Constraint("Tangent", 21, 2, 22, 2),
    Sketcher.Constraint("Tangent", 22, 1, 23, 1),
    Sketcher.Constraint("Tangent", 23, 2, 24, 2),
    Sketcher.Constraint("Tangent", 24, 1, 21, 1),
    Sketcher.Constraint("Tangent", 25, 2, 26, 2),
    Sketcher.Constraint("Tangent", 26, 1, 27, 1),
    Sketcher.Constraint("Tangent", 27, 2, 28, 2),
    Sketcher.Constraint("Tangent", 28, 1, 25, 1),
    Sketcher.Constraint("Tangent", 29, 2, 30, 2),
    Sketcher.Constraint("Tangent", 30, 1, 31, 1),
    Sketcher.Constraint("Tangent", 31, 2, 32, 2),
    Sketcher.Constraint("Tangent", 32, 1, 29, 1),
    Sketcher.Constraint("Tangent", 33, 2, 34, 2),
    Sketcher.Constraint("Tangent", 34, 1, 35, 1),
    Sketcher.Constraint("Tangent", 35, 2, 36, 2),
    Sketcher.Constraint("Tangent", 36, 1, 33, 1),
    Sketcher.Constraint("Tangent", 37, 2, 38, 2),
    Sketcher.Constraint("Tangent", 38, 1, 39, 1),
    Sketcher.Constraint("Tangent", 39, 2, 40, 2),
    Sketcher.Constraint("Tangent", 40, 1, 37, 1),
    Sketcher.Constraint("Tangent", 41, 2, 42, 2),
    Sketcher.Constraint("Tangent", 42, 1, 43, 1),
    Sketcher.Constraint("Tangent", 43, 2, 44, 2),
    Sketcher.Constraint("Tangent", 44, 1, 41, 1),
    Sketcher.Constraint("Tangent", 45, 2, 46, 2),
    Sketcher.Constraint("Tangent", 46, 1, 47, 1),
    Sketcher.Constraint("Tangent", 47, 2, 48, 2),
    Sketcher.Constraint("Tangent", 48, 1, 45, 1),
    Sketcher.Constraint("Tangent", 49, 2, 50, 2),
    Sketcher.Constraint("Tangent", 50, 1, 51, 1),
    Sketcher.Constraint("Tangent", 51, 2, 52, 2),
    Sketcher.Constraint("Tangent", 52, 1, 49, 1),
    Sketcher.Constraint("Tangent", 53, 2, 54, 2),
    Sketcher.Constraint("Tangent", 54, 1, 55, 1),
    Sketcher.Constraint("Tangent", 55, 2, 56, 2),
    Sketcher.Constraint("Tangent", 56, 1, 53, 1),
    Sketcher.Constraint("Tangent", 57, 2, 58, 2),
    Sketcher.Constraint("Tangent", 58, 1, 59, 1),
    Sketcher.Constraint("Tangent", 59, 2, 60, 2),
    Sketcher.Constraint("Tangent", 60, 1, 57, 1),
    Sketcher.Constraint("Tangent", 61, 2, 62, 2),
    Sketcher.Constraint("Tangent", 62, 1, 63, 1),
    Sketcher.Constraint("Tangent", 63, 2, 64, 2),
    Sketcher.Constraint("Tangent", 64, 1, 61, 1),
    Sketcher.Constraint("Tangent", 65, 2, 66, 2),
    Sketcher.Constraint("Tangent", 66, 1, 67, 1),
    Sketcher.Constraint("Tangent", 67, 2, 68, 2),
    Sketcher.Constraint("Tangent", 68, 1, 65, 1),
    Sketcher.Constraint("Tangent", 69, 2, 70, 2),
    Sketcher.Constraint("Tangent", 70, 1, 71, 1),
    Sketcher.Constraint("Tangent", 71, 2, 72, 2),
    Sketcher.Constraint("Tangent", 72, 1, 69, 1),
    Sketcher.Constraint("Horizontal", 9),
    Sketcher.Constraint("Horizontal", 11),
    Sketcher.Constraint("Horizontal", 13),
    Sketcher.Constraint("Horizontal", 15),
    Sketcher.Constraint("Horizontal", 17),
    Sketcher.Constraint("Horizontal", 19),
    Sketcher.Constraint("Horizontal", 21),
    Sketcher.Constraint("Horizontal", 23),
    Sketcher.Constraint("Horizontal", 25),
    Sketcher.Constraint("Horizontal", 27),
    Sketcher.Constraint("Horizontal", 29),
    Sketcher.Constraint("Horizontal", 31),
    Sketcher.Constraint("Horizontal", 33),
    Sketcher.Constraint("Horizontal", 35),
    Sketcher.Constraint("Horizontal", 37),
    Sketcher.Constraint("Horizontal", 39),
    Sketcher.Constraint("Horizontal", 41),
    Sketcher.Constraint("Horizontal", 43),
    Sketcher.Constraint("Horizontal", 45),
    Sketcher.Constraint("Horizontal", 47),
    Sketcher.Constraint("Horizontal", 49),
    Sketcher.Constraint("Horizontal", 51),
    Sketcher.Constraint("Horizontal", 53),
    Sketcher.Constraint("Horizontal", 55),
    Sketcher.Constraint("Horizontal", 57),
    Sketcher.Constraint("Horizontal", 59),
    Sketcher.Constraint("Horizontal", 61),
    Sketcher.Constraint("Horizontal", 63),
    Sketcher.Constraint("Horizontal", 65),
    Sketcher.Constraint("Horizontal", 67),
    Sketcher.Constraint("Horizontal", 69),
    Sketcher.Constraint("Horizontal", 71),
    Sketcher.Constraint("Equal", 0, 1),
    Sketcher.Constraint("Equal", 1, 2),
    Sketcher.Constraint("Equal", 2, 3),
    Sketcher.Constraint("Equal", 3, 4),
    Sketcher.Constraint("Equal", 4, 5),
    Sketcher.Constraint("Equal", 5, 6),
    Sketcher.Constraint("Equal", 6, 7),
    Sketcher.Constraint("Equal", 12, 14),
    Sketcher.Constraint("Equal", 16, 18),
    Sketcher.Constraint("Equal", 20, 22),
    Sketcher.Constraint("Equal", 24, 26),
    Sketcher.Constraint("Equal", 28, 30),
    Sketcher.Constraint("Equal", 32, 34),
    Sketcher.Constraint("Equal", 36, 38),
    Sketcher.Constraint("Equal", 40, 42),
    Sketcher.Constraint("Equal", 44, 46),
    Sketcher.Constraint("Equal", 48, 50),
    Sketcher.Constraint("Equal", 52, 54),
    Sketcher.Constraint("Equal", 56, 58),
    Sketcher.Constraint("Equal", 60, 62),
    Sketcher.Constraint("Equal", 64, 66),
    Sketcher.Constraint("Equal", 68, 70),
    Sketcher.Constraint("Horizontal", 0, 3, 2, 3),
    Sketcher.Constraint("Horizontal", 1, 3, 3, 3),
    Sketcher.Constraint("Horizontal", 4, 3, 5, 3),
    Sketcher.Constraint("Horizontal", 6, 3, 7, 3),
    Sketcher.Constraint("Horizontal", 20, 3, 34, 3),
    Sketcher.Constraint("Horizontal", 24, 3, 38, 3),
    Sketcher.Constraint("Horizontal", 12, 3, 42, 3),
    Sketcher.Constraint("Horizontal", 48, 3, 54, 3),
    Sketcher.Constraint("Horizontal", 52, 3, 58, 3),
    Sketcher.Constraint("Vertical", 0, 3, 1, 3),
    Sketcher.Constraint("Vertical", 2, 3, 3, 3),
    Sketcher.Constraint("Vertical", 5, 3, 6, 3),
    Sketcher.Constraint("Vertical", 4, 3, 7, 3),
    Sketcher.Constraint("Vertical", 38, 3, 46, 3),
    Sketcher.Constraint("Vertical", 40, 3, 48, 3),
    Sketcher.Constraint("Vertical", 34, 3, 50, 3),
    Sketcher.Constraint("Vertical", 36, 3, 52, 3),
    Sketcher.Constraint("Vertical", 22, 3, 54, 3),
    Sketcher.Constraint("Vertical", 24, 3, 56, 3),
    Sketcher.Constraint("Vertical", 18, 3, 58, 3),
    Sketcher.Constraint("Vertical", 20, 3, 60, 3),
    Sketcher.Constraint("Vertical", 14, 3, 62, 3),
    Sketcher.Constraint("Vertical", 16, 3, 64, 3),
    Sketcher.Constraint("Vertical", 26, 3, 66, 3),
    Sketcher.Constraint("Vertical", 28, 3, 68, 3),
    Sketcher.Constraint("Vertical", 30, 3, 70, 3),
    Sketcher.Constraint("Vertical", 32, 3, 72, 3),
    Sketcher.Constraint("Equal", 19, 33),
    Sketcher.Constraint("Equal", 23, 37),
    Sketcher.Constraint("Equal", 11, 41),
    Sketcher.Constraint("Diameter", 0, 3.0),
    Sketcher.Constraint("Radius", 10, 2.0),
    Sketcher.Constraint("Diameter", 8, 3.5),
    Sketcher.Constraint("DistanceX", 9, 1, 9, 2, 19.0),
    Sketcher.Constraint("DistanceX", 29, 1, 29, 2, 25.0),
    Sketcher.Constraint("DistanceX", -1, 1, 8, 3, 67.0),
    Sketcher.Constraint("DistanceY", 8, 3, -1, 1, 96.0),
    Sketcher.Constraint("DistanceX", 10, 3, -1, 1, 41.0),
    Sketcher.Constraint("DistanceY", 10, 3, -1, 1, 31.0),
    Sketcher.Constraint("DistanceY", 14, 3, -1, 1, 10.0),
    Sketcher.Constraint("DistanceY", 18, 3, -1, 1, 17.0),
    Sketcher.Constraint("DistanceY", 22, 3, -1, 1, 24.0),
    Sketcher.Constraint("DistanceY", 26, 3, -1, 1, 3.0),
    Sketcher.Constraint("DistanceY", -1, 1, 30, 3, 4.0),
    Sketcher.Constraint("DistanceX", 42, 3, -1, 1, 94.0),
    Sketcher.Constraint("DistanceY", 46, 3, -1, 1, 38.0),
    Sketcher.Constraint("DistanceY", 50, 3, -1, 1, 45.0),
    Sketcher.Constraint("DistanceY", 62, 3, -1, 1, 52.0),
    Sketcher.Constraint("DistanceY", 66, 3, -1, 1, 59.0),
    Sketcher.Constraint("DistanceY", 70, 3, -1, 1, 66.0),
    Sketcher.Constraint("DistanceX", -1, 1, 4, 3, 13.3),
    Sketcher.Constraint("DistanceY", 4, 3, -1, 1, 26.6),
    Sketcher.Constraint("DistanceX", -1, 1, 5, 3, 93.3),
    Sketcher.Constraint("DistanceY", -1, 1, 6, 3, 93.4),
    Sketcher.Constraint("DistanceX", 30, 3, -1, 1, 64.5),
    Sketcher.Constraint("DistanceX", 0, 3, -1, 1, 41.25),
    Sketcher.Constraint("DistanceY", -1, 1, 0, 3, 4.75),
    Sketcher.Constraint("DistanceY", 1, 3, -1, 1, 66.75),
    Sketcher.Constraint("DistanceX", 2, 3, -1, 1, 112.75),
    Sketcher.Constraint("DistanceX", 13, 1, 13, 2, 58.480766),
    Sketcher.Constraint("DistanceX", 17, 1, 17, 2, 23.522597),
    Sketcher.Constraint("DistanceX", 21, 1, 21, 2, 19.820954),
    Sketcher.Constraint("DistanceX", 25, 1, 25, 2, 45.254834),
    Sketcher.Constraint("DistanceX", 20, 3, -1, 1, 67.356349),
    Sketcher.Constraint("DistanceX", 34, 3, -1, 1, 86.643651),
    Sketcher.Constraint("DistanceX", 14, 3, -1, 1, 47.759617),
    Sketcher.Constraint("DistanceX", 22, 3, -1, 1, 41.687113),
    Sketcher.Constraint("DistanceX", 26, 3, -1, 1, 54.372583),
    Sketcher.Constraint("DistanceX", 38, 3, -1, 1, 92.491933),
])
pocket4 = body.newObject("PartDesign::Pocket", "Pocket003")
pocket4.Profile = sketch7
pocket4.Length = 15
pocket4.Reversed = True

# Sketch on XY plane
sketch8 = body.newObject("Sketcher::SketchObject", "Sketch007")
sketch8.AttachmentSupport = (doc.getObject("XY_Plane"), [""])
sketch8.MapMode = "FlatFace"
sketch8.AttachmentOffset = App.Placement(App.Vector(0, 0, 65), App.Rotation())
sketch8.addGeometry([
    Part.LineSegment(App.Vector(-129, -78.75, 0), App.Vector(-129, -108.75, 0)),
    Part.LineSegment(App.Vector(-129, -108.75, 0), App.Vector(-127, -108.75, 0)),
    Part.LineSegment(App.Vector(-127, -108.75, 0), App.Vector(-127, -78.75, 0)),
    Part.LineSegment(App.Vector(-127, -78.75, 0), App.Vector(-129, -78.75, 0)),
], False)
sketch8.addConstraint([
    Sketcher.Constraint("Coincident", 0, 2, 1, 1),
    Sketcher.Constraint("Coincident", 1, 2, 2, 1),
    Sketcher.Constraint("Coincident", 2, 2, 3, 1),
    Sketcher.Constraint("Coincident", 3, 2, 0, 1),
    Sketcher.Constraint("Vertical", 0),
    Sketcher.Constraint("Horizontal", 1),
    Sketcher.Constraint("Vertical", 2),
    Sketcher.Constraint("Horizontal", 3),
    Sketcher.Constraint("DistanceX", 1, 1, 1, 2, 2.0),
    Sketcher.Constraint("DistanceY", 0, 2, 0, 1, 30.0),
    Sketcher.Constraint("DistanceX", 0, 2, -1, 1, 129.0),
    Sketcher.Constraint("DistanceY", 0, 2, -1, 1, 108.75),
])
pocket5 = body.newObject("PartDesign::Pocket", "Pocket004")
pocket5.Profile = sketch8
pocket5.Length = 1.5

# Sketch on YZ plane
sketch9 = body.newObject("Sketcher::SketchObject", "Sketch008")
sketch9.AttachmentSupport = (doc.getObject("YZ_Plane"), [""])
sketch9.MapMode = "FlatFace"
sketch9.AttachmentOffset = App.Placement(App.Vector(0, 0, 129), App.Rotation())
sketch9.addGeometry([
    Part.Circle(App.Vector(88.75, 74, 0), App.Vector(0, 0, 1), 1.7),
    Part.Circle(App.Vector(15, 74, 0), App.Vector(0, 0, 1), 1.7),
    Part.Circle(App.Vector(-58.75, 74, 0), App.Vector(0, 0, 1), 1.7),
], False)
sketch9.addConstraint([
    Sketcher.Constraint("Equal", 0, 1),
    Sketcher.Constraint("Equal", 1, 2),
    Sketcher.Constraint("Horizontal", 0, 3, 1, 3),
    Sketcher.Constraint("Horizontal", 1, 3, 2, 3),
    Sketcher.Constraint("Diameter", 0, 3.4),
    Sketcher.Constraint("DistanceY", -1, 1, 0, 3, 74.0),
    Sketcher.Constraint("DistanceX", -1, 1, 1, 3, 15.0),
    Sketcher.Constraint("DistanceX", 2, 3, 0, 3, 147.5),
    Sketcher.Constraint("DistanceX", -1, 1, 0, 3, 88.75),
])
doc.recompute()
hole = body.newObject("PartDesign::Hole", "Hole")
hole.Profile = sketch9
hole.ThreadType = "None"
hole.Diameter = 3.4
hole.DepthType = "Dimension"
hole.Depth = 10
hole.DrillPoint = "Angled"
hole.DrillPointAngle = 118
hole.HoleCutType = "Countersink"
hole.HoleCutDiameter = 6.3
hole.HoleCutCountersinkAngle = 90

# Sketch on YZ plane
sketch10 = body.newObject("Sketcher::SketchObject", "Sketch009")
sketch10.AttachmentSupport = (doc.getObject("YZ_Plane"), [""])
sketch10.MapMode = "FlatFace"
sketch10.AttachmentOffset = App.Placement(App.Vector(0, 0, -129), App.Rotation())
sketch10.addGeometry([
    Part.Circle(App.Vector(88.75, 74, 0), App.Vector(0, 0, 1), 1.7),
    Part.Circle(App.Vector(15, 74, 0), App.Vector(0, 0, 1), 1.7),
    Part.Circle(App.Vector(-58.75, 74, 0), App.Vector(0, 0, 1), 1.7),
], False)
sketch10.addConstraint([
    Sketcher.Constraint("Equal", 0, 1),
    Sketcher.Constraint("Equal", 1, 2),
    Sketcher.Constraint("Horizontal", 0, 3, 1, 3),
    Sketcher.Constraint("Horizontal", 1, 3, 2, 3),
    Sketcher.Constraint("Diameter", 0, 3.4),
    Sketcher.Constraint("DistanceY", -1, 1, 0, 3, 74.0),
    Sketcher.Constraint("DistanceX", -1, 1, 1, 3, 15.0),
    Sketcher.Constraint("DistanceX", 2, 3, 0, 3, 147.5),
    Sketcher.Constraint("DistanceX", -1, 1, 0, 3, 88.75),
])
doc.recompute()
hole2 = body.newObject("PartDesign::Hole", "Hole001")
hole2.Profile = sketch10
hole2.ThreadType = "None"
hole2.Diameter = 3.4
hole2.DepthType = "Dimension"
hole2.Depth = 10
hole2.DrillPoint = "Angled"
hole2.DrillPointAngle = 118
hole2.HoleCutType = "Countersink"
hole2.HoleCutDiameter = 6.3
hole2.HoleCutCountersinkAngle = 90
hole2.Reversed = True

# Sketch on XY plane
sketch11 = body.newObject("Sketcher::SketchObject", "Sketch010")
sketch11.AttachmentSupport = (doc.getObject("XY_Plane"), [""])
sketch11.MapMode = "FlatFace"
sketch11.addGeometry([
    Part.Circle(App.Vector(-41.25, 4.75, 0), App.Vector(0, 0, 1), 1.7),  # 0
    Part.Circle(App.Vector(-112.75, 4.75, 0), App.Vector(0, 0, 1), 1.7),  # 1
    Part.Circle(App.Vector(-112.75, -66.75, 0), App.Vector(0, 0, 1), 1.7),  # 2
    Part.Circle(App.Vector(-41.25, -66.75, 0), App.Vector(0, 0, 1), 1.7),  # 3
    Part.Circle(App.Vector(93.3, 93.4, 0), App.Vector(0, 0, 1), 1.7),  # 4
    Part.Circle(App.Vector(13.3, 93.4, 0), App.Vector(0, 0, 1), 1.7),  # 5
    Part.Circle(App.Vector(13.3, -26.6, 0), App.Vector(0, 0, 1), 1.7),  # 6
    Part.Circle(App.Vector(93.3, -26.6, 0), App.Vector(0, 0, 1), 1.7),  # 7
], False)
sketch11.addConstraint([
    Sketcher.Constraint("Equal", 0, 1),
    Sketcher.Constraint("Equal", 1, 2),
    Sketcher.Constraint("Equal", 2, 3),
    Sketcher.Constraint("Equal", 3, 4),
    Sketcher.Constraint("Equal", 4, 5),
    Sketcher.Constraint("Equal", 5, 6),
    Sketcher.Constraint("Equal", 6, 7),
    Sketcher.Constraint("Horizontal", 0, 3, 1, 3),
    Sketcher.Constraint("Horizontal", 2, 3, 3, 3),
    Sketcher.Constraint("Horizontal", 4, 3, 5, 3),
    Sketcher.Constraint("Horizontal", 6, 3, 7, 3),
    Sketcher.Constraint("Vertical", 1, 3, 2, 3),
    Sketcher.Constraint("Vertical", 0, 3, 3, 3),
    Sketcher.Constraint("Vertical", 5, 3, 6, 3),
    Sketcher.Constraint("Vertical", 4, 3, 7, 3),
    Sketcher.Constraint("Diameter", 0, 3.4),
    Sketcher.Constraint("DistanceX", 5, 3, 4, 3, 80.0),
    Sketcher.Constraint("DistanceY", 6, 3, 5, 3, 120.0),
    Sketcher.Constraint("DistanceX", -1, 1, 4, 3, 93.3),
    Sketcher.Constraint("DistanceY", -1, 1, 4, 3, 93.4),
    Sketcher.Constraint("DistanceX", 1, 3, 0, 3, 71.5),
    Sketcher.Constraint("DistanceY", 2, 3, 1, 3, 71.5),
    Sketcher.Constraint("DistanceX", 0, 3, -1, 1, 41.25),
    Sketcher.Constraint("DistanceY", -1, 1, 0, 3, 4.75),
])
doc.recompute()
hole3 = body.newObject("PartDesign::Hole", "Hole002")
hole3.Profile = sketch11
hole3.ThreadType = "None"
hole3.Diameter = 3.4
hole3.DepthType = "Dimension"
hole3.Depth = 10
hole3.DrillPoint = "Angled"
hole3.DrillPointAngle = 118
hole3.HoleCutType = "Countersink"
hole3.HoleCutDiameter = 6.3
hole3.HoleCutCountersinkAngle = 90
hole3.Reversed = True

# Sketch on YZ plane
sketch12 = body.newObject("Sketcher::SketchObject", "Sketch011")
sketch12.AttachmentSupport = (doc.getObject("YZ_Plane"), [""])
sketch12.MapMode = "FlatFace"
sketch12.AttachmentOffset = App.Placement(App.Vector(0, 0, 129), App.Rotation())
sketch12.addGeometry([
    Part.LineSegment(App.Vector(93, 20, 0), App.Vector(93, 55, 0)),
    Part.ArcOfCircle(Part.Circle(App.Vector(91, 55, 0), App.Vector(0, 0, 1), 2), math.radians(0), math.radians(180)),
    Part.LineSegment(App.Vector(89, 55, 0), App.Vector(89, 20, 0)),
    Part.ArcOfCircle(Part.Circle(App.Vector(91, 20, 0), App.Vector(0, 0, 1), 2), math.radians(180), math.radians(360)),
], False)
sketch12.addConstraint([
    Sketcher.Constraint("Tangent", 0, 2, 1, 1),
    Sketcher.Constraint("Tangent", 1, 2, 2, 1),
    Sketcher.Constraint("Tangent", 2, 2, 3, 1),
    Sketcher.Constraint("Tangent", 3, 2, 0, 1),
    Sketcher.Constraint("Vertical", 0),
    Sketcher.Constraint("Vertical", 2),
    Sketcher.Constraint("Radius", 1, 2.0),
    Sketcher.Constraint("DistanceY", 0, 1, 0, 2, 35.0),
    Sketcher.Constraint("DistanceX", -1, 1, 1, 3, 91.0),
    Sketcher.Constraint("DistanceY", -1, 1, 1, 3, 55.0),
])
pocket6 = body.newObject("PartDesign::Pocket", "Pocket005")
pocket6.Profile = sketch12
pocket6.Length = 10
doc.recompute()

linearpattern = body.newObject("PartDesign::LinearPattern", "LinearPattern")
linearpattern.Originals = [pocket6]
linearpattern.Direction = (doc.getObject("Y_Axis"), [""])
linearpattern.Mode = "offset"
linearpattern.Offset = 7
linearpattern.Occurrences = 12
linearpattern.Reversed = True
body.Tip = linearpattern

doc.recompute()
